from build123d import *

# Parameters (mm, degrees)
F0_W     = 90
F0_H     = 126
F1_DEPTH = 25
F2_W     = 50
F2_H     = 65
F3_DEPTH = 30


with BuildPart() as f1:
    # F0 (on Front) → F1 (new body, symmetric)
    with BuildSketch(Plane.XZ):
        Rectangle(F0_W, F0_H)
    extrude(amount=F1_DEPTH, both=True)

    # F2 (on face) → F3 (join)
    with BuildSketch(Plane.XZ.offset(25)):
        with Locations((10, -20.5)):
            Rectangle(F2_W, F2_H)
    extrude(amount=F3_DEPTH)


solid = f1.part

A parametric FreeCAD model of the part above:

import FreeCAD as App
import Part
import Sketcher
from FreeCAD import Vector

doc = App.newDocument("Part")
body = doc.addObject("PartDesign::Body", "Body")

# Sketch on XZ plane
sketch1 = body.newObject("Sketcher::SketchObject", "Sketch")
sketch1.AttachmentSupport = (doc.getObject("XZ_Plane"), [""])
sketch1.MapMode = "FlatFace"
sketch1.addGeometry([
    Part.LineSegment(Vector(-45, 63, 0), Vector(-45, -63, 0)),
    Part.LineSegment(Vector(-45, -63, 0), Vector(45, -63, 0)),
    Part.LineSegment(Vector(45, -63, 0), Vector(45, 63, 0)),
    Part.LineSegment(Vector(45, 63, 0), Vector(-45, 63, 0)),
], False)
sketch1.addConstraint([
    Sketcher.Constraint("Coincident", 0, 2, 1, 1),
    Sketcher.Constraint("Coincident", 1, 2, 2, 1),
    Sketcher.Constraint("Coincident", 2, 2, 3, 1),
    Sketcher.Constraint("Coincident", 3, 2, 0, 1),
    Sketcher.Constraint("Vertical", 0),
    Sketcher.Constraint("Horizontal", 1),
    Sketcher.Constraint("Vertical", 2),
    Sketcher.Constraint("Horizontal", 3),
    Sketcher.Constraint("Symmetric", 0, 2, 2, 2, -1, 1),
    Sketcher.Constraint("DistanceX", 1, 1, 1, 2, 90.0),
    Sketcher.Constraint("DistanceY", 0, 2, 0, 1, 126.0),
])
pad1 = body.newObject("PartDesign::Pad", "Pad")
pad1.Profile = sketch1
pad1.Length = 50
pad1.Midplane = True

# Sketch on XZ plane
sketch2 = body.newObject("Sketcher::SketchObject", "Sketch001")
sketch2.AttachmentSupport = (doc.getObject("XZ_Plane"), [""])
sketch2.MapMode = "FlatFace"
sketch2.AttachmentOffset = App.Placement(Vector(0, 0, 25), App.Rotation())
sketch2.addGeometry([
    Part.LineSegment(Vector(-15, 12, 0), Vector(-15, -53, 0)),
    Part.LineSegment(Vector(-15, -53, 0), Vector(35, -53, 0)),
    Part.LineSegment(Vector(35, -53, 0), Vector(35, 12, 0)),
    Part.LineSegment(Vector(35, 12, 0), Vector(-15, 12, 0)),
], False)
sketch2.addConstraint([
    Sketcher.Constraint("Coincident", 0, 2, 1, 1),
    Sketcher.Constraint("Coincident", 1, 2, 2, 1),
    Sketcher.Constraint("Coincident", 2, 2, 3, 1),
    Sketcher.Constraint("Coincident", 3, 2, 0, 1),
    Sketcher.Constraint("Vertical", 0),
    Sketcher.Constraint("Horizontal", 1),
    Sketcher.Constraint("Vertical", 2),
    Sketcher.Constraint("Horizontal", 3),
    Sketcher.Constraint("DistanceX", 1, 1, 1, 2, 50.0),
    Sketcher.Constraint("DistanceY", 0, 2, 0, 1, 65.0),
    Sketcher.Constraint("DistanceX", 0, 2, -1, 1, 15.0),
    Sketcher.Constraint("DistanceY", 0, 2, -1, 1, 53.0),
])
pad2 = body.newObject("PartDesign::Pad", "Pad001")
pad2.Profile = sketch2
pad2.Length = 30

doc.recompute()
